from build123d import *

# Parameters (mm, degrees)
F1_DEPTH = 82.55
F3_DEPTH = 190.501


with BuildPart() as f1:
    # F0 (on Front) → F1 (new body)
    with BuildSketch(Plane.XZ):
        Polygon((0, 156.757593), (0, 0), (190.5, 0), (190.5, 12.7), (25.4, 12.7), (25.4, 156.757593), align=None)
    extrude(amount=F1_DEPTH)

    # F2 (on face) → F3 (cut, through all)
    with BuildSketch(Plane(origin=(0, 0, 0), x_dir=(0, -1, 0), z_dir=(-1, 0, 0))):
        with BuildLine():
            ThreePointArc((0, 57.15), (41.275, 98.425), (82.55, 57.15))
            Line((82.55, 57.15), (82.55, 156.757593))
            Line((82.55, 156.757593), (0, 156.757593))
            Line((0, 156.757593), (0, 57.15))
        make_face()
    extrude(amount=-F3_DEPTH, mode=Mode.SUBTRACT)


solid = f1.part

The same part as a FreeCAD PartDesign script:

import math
import FreeCAD as App
import Part
import Sketcher

V = App.Vector
Q = App.Units.Quantity

doc = App.newDocument("Part")
body = doc.addObject("PartDesign::Body", "Body")

sketch1 = doc.addObject("Sketcher::SketchObject", "Sketch")
body.addObject(sketch1)
sketch1.AttachmentSupport = (doc.XZ_Plane, [""])
sketch1.MapMode = "FlatFace"
sketch1.addGeometry([
    Part.LineSegment(V(0, 157, 0), V(0, 0, 0)),
    Part.LineSegment(V(0, 0, 0), V(190, 0, 0)),
    Part.LineSegment(V(190, 0, 0), V(190, 13, 0)),
    Part.LineSegment(V(190, 13, 0), V(25, 13, 0)),
    Part.LineSegment(V(25, 13, 0), V(25, 157, 0)),
    Part.LineSegment(V(25, 157, 0), V(0, 157, 0)),
], False)
sketch1.addConstraint([
    Sketcher.Constraint("Coincident", 0, 2, 1, 1),
    Sketcher.Constraint("Coincident", 1, 2, 2, 1),
    Sketcher.Constraint("Coincident", 2, 2, 3, 1),
    Sketcher.Constraint("Coincident", 3, 2, 4, 1),
    Sketcher.Constraint("Coincident", 4, 2, 5, 1),
    Sketcher.Constraint("Coincident", 5, 2, 0, 1),
    Sketcher.Constraint("Vertical", 0),
    Sketcher.Constraint("Horizontal", 1),
    Sketcher.Constraint("Vertical", 2),
    Sketcher.Constraint("Horizontal", 3),
    Sketcher.Constraint("Vertical", 4),
    Sketcher.Constraint("Horizontal", 5),
    Sketcher.Constraint("Coincident", 0, 2, -1, 1),
    Sketcher.Constraint("DistanceX", 5, 2, 5, 1, Q("1 in")),
    Sketcher.Constraint("DistanceX", 1, 1, 1, 2, Q("7.5 in")),
    Sketcher.Constraint("DistanceY", 2, 1, 2, 2, Q("0.5 in")),
    Sketcher.Constraint("DistanceY", 0, 2, 0, 1, Q("156.757593 mm")),
])
pad1 = doc.addObject("PartDesign::Pad", "Pad")
body.addObject(pad1)
pad1.Profile = sketch1
pad1.Length = Q("3.25 in")

sketch2 = doc.addObject("Sketcher::SketchObject", "Sketch001")
body.addObject(sketch2)
sketch2.AttachmentSupport = (doc.YZ_Plane, [""])
sketch2.MapMode = "FlatFace"
sketch2.addGeometry([
    Part.ArcOfCircle(Part.Circle(V(-41, 57, 0), V(0, 0, 1), 41), math.radians(0), math.radians(180)),
    Part.LineSegment(V(-83, 57, 0), V(-83, 157, 0)),
    Part.LineSegment(V(-83, 157, 0), V(0, 157, 0)),
    Part.LineSegment(V(0, 157, 0), V(0, 57, 0)),
], False)
sketch2.addConstraint([
    Sketcher.Constraint("Tangent", 0, 2, 1, 1),
    Sketcher.Constraint("Coincident", 1, 2, 2, 1),
    Sketcher.Constraint("Coincident", 2, 2, 3, 1),
    Sketcher.Constraint("Tangent", 3, 2, 0, 1),
    Sketcher.Constraint("Vertical", 1),
    Sketcher.Constraint("Horizontal", 2),
    Sketcher.Constraint("Vertical", 3),
    Sketcher.Constraint("PointOnObject", 2, 2, -2),
    Sketcher.Constraint("Radius", 0, Q("1.625 in")),
    Sketcher.Constraint("DistanceY", -1, 1, 0, 3, Q("2.25 in")),
    Sketcher.Constraint("DistanceY", 1, 1, 1, 2, Q("99.607593 mm")),
])
pocket1 = doc.addObject("PartDesign::Pocket", "Pocket")
body.addObject(pocket1)
pocket1.Profile = sketch2
pocket1.Type = "ThroughAll"
pocket1.Reversed = True

doc.recompute()
